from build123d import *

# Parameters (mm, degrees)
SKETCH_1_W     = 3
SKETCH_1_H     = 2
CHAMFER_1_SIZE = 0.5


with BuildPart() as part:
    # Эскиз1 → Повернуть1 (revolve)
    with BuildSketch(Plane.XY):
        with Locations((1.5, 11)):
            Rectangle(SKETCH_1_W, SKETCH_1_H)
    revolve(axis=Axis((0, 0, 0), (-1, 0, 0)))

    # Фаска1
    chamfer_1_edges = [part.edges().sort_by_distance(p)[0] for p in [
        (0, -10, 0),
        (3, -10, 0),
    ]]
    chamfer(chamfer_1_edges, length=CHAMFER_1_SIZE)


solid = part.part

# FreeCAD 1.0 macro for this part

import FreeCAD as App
import Part
import Sketcher
from FreeCAD import Vector


def edges_at(feature, points):
    """Names of the edges that pass closest to the given points."""
    edges = feature.Shape.Edges
    near = lambda p: min(range(len(edges)), key=lambda i: edges[i].distToShape(Part.Vertex(*p))[0])
    return sorted({f"Edge{near(p) + 1}" for p in points})

doc = App.newDocument("Part")
body = doc.addObject("PartDesign::Body", "Body")

sketch1 = doc.addObject("Sketcher::SketchObject", "Sketch")
body.addObject(sketch1)
sketch1.AttachmentSupport = (doc.XY_Plane, [""])
sketch1.MapMode = "FlatFace"
sketch1.addGeometry(Part.LineSegment(Vector(0, 12, 0), Vector(0, 10, 0)), False)
sketch1.addGeometry(Part.LineSegment(Vector(0, 10, 0), Vector(3, 10, 0)), False)
sketch1.addGeometry(Part.LineSegment(Vector(3, 10, 0), Vector(3, 12, 0)), False)
sketch1.addGeometry(Part.LineSegment(Vector(3, 12, 0), Vector(0, 12, 0)), False)
sketch1.addConstraint(Sketcher.Constraint("Coincident", 0, 2, 1, 1))
sketch1.addConstraint(Sketcher.Constraint("Coincident", 1, 2, 2, 1))
sketch1.addConstraint(Sketcher.Constraint("Coincident", 2, 2, 3, 1))
sketch1.addConstraint(Sketcher.Constraint("Coincident", 3, 2, 0, 1))
sketch1.addConstraint(Sketcher.Constraint("Vertical", 0))
sketch1.addConstraint(Sketcher.Constraint("Horizontal", 1))
sketch1.addConstraint(Sketcher.Constraint("Vertical", 2))
sketch1.addConstraint(Sketcher.Constraint("Horizontal", 3))
sketch1.addConstraint(Sketcher.Constraint("PointOnObject", 0, 2, -2))
sketch1.addConstraint(Sketcher.Constraint("DistanceX", 1, 1, 1, 2, 3.0))
sketch1.addConstraint(Sketcher.Constraint("DistanceY", 0, 2, 0, 1, 2.0))
sketch1.addConstraint(Sketcher.Constraint("DistanceY", -1, 1, 0, 2, 10.0))
revolution = doc.addObject("PartDesign::Revolution", "Revolution")
body.addObject(revolution)
revolution.Profile = sketch1
revolution.ReferenceAxis = (sketch1, ["H_Axis"])
revolution.Angle = 360
doc.recompute()

chamfer = doc.addObject("PartDesign::Chamfer", "Chamfer")
body.addObject(chamfer)
chamfer.Base = (revolution, edges_at(revolution, [(0, -10, 0), (3, -10, 0)]))
chamfer.Size = 0.5

doc.recompute()
